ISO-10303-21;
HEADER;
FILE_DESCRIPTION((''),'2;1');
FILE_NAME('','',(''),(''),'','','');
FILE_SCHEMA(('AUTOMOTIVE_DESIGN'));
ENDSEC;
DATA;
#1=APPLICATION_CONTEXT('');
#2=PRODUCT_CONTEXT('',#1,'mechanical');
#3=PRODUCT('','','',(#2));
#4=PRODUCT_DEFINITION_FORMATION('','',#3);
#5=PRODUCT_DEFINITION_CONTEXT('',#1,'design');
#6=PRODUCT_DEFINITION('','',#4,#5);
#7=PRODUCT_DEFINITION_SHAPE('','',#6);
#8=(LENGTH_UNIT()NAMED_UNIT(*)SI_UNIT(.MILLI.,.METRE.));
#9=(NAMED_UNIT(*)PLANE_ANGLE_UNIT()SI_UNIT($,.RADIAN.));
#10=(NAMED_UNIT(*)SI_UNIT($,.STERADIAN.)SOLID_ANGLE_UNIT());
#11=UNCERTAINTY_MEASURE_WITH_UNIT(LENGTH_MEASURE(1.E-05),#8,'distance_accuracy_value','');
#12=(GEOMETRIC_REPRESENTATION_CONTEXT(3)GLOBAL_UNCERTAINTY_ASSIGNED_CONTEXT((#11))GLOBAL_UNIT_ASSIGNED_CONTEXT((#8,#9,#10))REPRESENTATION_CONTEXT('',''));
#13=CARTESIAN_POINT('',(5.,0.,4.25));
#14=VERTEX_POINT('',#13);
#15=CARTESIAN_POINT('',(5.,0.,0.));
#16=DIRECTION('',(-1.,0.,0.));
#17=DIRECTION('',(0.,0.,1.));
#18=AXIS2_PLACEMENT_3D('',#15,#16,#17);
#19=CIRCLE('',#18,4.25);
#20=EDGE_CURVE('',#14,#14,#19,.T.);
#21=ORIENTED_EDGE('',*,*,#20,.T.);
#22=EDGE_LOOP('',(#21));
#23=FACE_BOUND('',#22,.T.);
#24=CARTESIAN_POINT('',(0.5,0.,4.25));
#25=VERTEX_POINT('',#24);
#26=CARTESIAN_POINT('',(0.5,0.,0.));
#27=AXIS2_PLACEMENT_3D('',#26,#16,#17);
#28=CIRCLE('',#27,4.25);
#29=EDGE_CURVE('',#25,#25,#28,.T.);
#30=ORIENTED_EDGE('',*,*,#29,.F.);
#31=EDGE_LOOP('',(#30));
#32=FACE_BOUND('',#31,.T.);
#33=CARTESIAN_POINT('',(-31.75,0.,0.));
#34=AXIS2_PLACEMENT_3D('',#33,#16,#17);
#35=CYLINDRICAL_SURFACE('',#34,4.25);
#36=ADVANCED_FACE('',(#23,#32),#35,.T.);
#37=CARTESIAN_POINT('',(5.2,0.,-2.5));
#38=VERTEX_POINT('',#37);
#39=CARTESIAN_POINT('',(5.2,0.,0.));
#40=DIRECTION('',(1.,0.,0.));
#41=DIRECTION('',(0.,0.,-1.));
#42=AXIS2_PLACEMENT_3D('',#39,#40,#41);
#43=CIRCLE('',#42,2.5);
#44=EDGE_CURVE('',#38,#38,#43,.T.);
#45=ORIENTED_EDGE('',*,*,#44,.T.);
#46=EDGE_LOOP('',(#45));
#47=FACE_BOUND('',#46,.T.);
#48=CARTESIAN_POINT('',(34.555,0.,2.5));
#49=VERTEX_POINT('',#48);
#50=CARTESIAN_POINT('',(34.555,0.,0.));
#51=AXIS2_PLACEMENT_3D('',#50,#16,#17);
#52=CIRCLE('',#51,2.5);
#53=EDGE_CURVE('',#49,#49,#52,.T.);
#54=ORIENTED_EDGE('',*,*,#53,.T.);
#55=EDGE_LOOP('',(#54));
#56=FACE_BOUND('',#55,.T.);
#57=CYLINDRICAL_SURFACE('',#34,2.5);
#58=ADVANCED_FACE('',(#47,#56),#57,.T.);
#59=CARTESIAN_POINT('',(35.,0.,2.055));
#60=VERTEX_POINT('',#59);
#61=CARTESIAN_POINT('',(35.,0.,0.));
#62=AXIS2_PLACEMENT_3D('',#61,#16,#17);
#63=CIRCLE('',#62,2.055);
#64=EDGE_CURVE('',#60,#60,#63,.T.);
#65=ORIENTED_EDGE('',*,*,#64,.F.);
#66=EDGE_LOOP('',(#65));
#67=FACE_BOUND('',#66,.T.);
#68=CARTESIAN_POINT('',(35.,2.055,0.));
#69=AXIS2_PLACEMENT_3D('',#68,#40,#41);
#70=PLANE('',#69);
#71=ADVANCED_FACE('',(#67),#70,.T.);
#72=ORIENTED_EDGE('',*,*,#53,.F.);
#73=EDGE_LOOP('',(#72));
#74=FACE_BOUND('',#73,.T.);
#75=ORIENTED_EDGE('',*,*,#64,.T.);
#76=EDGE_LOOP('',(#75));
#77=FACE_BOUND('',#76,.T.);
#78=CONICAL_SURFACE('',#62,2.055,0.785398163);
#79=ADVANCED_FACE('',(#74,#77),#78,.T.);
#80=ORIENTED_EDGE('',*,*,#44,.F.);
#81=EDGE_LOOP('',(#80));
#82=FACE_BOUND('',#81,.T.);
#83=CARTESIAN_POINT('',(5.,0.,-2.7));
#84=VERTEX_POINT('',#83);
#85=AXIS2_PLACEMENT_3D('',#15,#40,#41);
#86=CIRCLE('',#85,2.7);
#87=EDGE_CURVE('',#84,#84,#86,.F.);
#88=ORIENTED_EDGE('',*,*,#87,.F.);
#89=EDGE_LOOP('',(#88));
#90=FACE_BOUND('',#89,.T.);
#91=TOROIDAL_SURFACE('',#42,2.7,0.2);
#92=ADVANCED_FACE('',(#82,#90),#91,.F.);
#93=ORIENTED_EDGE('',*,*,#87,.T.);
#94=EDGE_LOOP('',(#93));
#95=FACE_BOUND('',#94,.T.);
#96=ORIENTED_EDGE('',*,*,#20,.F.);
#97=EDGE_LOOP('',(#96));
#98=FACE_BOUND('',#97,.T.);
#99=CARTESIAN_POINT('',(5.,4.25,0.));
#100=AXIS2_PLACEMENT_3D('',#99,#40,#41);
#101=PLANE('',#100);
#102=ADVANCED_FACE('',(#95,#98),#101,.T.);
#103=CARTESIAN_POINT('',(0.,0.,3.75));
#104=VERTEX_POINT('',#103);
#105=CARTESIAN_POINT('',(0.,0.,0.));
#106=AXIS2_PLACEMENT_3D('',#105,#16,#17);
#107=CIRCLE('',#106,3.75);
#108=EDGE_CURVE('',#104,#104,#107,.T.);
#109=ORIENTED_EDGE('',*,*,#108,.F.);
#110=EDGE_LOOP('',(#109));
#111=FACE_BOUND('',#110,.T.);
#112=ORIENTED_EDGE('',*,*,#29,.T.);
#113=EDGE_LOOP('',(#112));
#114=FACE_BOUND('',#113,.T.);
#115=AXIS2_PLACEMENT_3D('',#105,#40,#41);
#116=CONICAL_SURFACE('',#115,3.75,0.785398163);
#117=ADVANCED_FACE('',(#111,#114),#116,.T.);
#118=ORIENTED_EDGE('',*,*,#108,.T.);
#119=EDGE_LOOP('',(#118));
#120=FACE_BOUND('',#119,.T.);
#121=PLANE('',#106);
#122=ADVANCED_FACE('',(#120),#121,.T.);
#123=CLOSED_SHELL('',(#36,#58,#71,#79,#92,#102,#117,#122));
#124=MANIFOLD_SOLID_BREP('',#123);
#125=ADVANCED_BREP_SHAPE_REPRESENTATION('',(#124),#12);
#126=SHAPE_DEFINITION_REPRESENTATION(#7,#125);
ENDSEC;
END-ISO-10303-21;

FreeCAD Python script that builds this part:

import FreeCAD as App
import Part
import Sketcher
from FreeCAD import Vector
Q = App.Units.Quantity


def edges_at(feature, points):
    """Names of the edges that pass closest to the given points."""
    edges = feature.Shape.Edges
    near = lambda p: min(range(len(edges)), key=lambda i: edges[i].distToShape(Part.Vertex(*p))[0])
    return sorted({f"Edge{near(p) + 1}" for p in points})


def add_polygon(sketch, points):
    """Adds a closed chain of lines whose ends are joined by coincident constraints."""
    first, n = sketch.GeometryCount, len(points)
    for a, b in zip(points, points[1:] + points[:1]):
        sketch.addGeometry(Part.LineSegment(App.Vector(*a, 0), App.Vector(*b, 0)), False)
    for i in range(n):
        sketch.addConstraint(Sketcher.Constraint("Coincident", first + i, 2, first + (i + 1) % n, 1))

doc = App.newDocument("Part")
body = doc.addObject("PartDesign::Body", "Body")

# Sketch on XY plane
sketch1 = doc.addObject("Sketcher::SketchObject", "Sketch")
body.addObject(sketch1)
sketch1.AttachmentSupport = (doc.XY_Plane, [""])
sketch1.MapMode = "FlatFace"
add_polygon(sketch1, [(0, 3.8), (0, 0), (35, 0), (35, 2.1), (34.6, 2.5), (5, 2.5), (5, 4.2), (0.5, 4.2)])  # lines 0-7
sketch1.addConstraint([
    Sketcher.Constraint("Vertical", 0),
    Sketcher.Constraint("Horizontal", 1),
    Sketcher.Constraint("Vertical", 2),
    Sketcher.Constraint("Horizontal", 4),
    Sketcher.Constraint("Vertical", 5),
    Sketcher.Constraint("Horizontal", 6),
    Sketcher.Constraint("Coincident", 0, 2, -1, 1),
    Sketcher.Constraint("Perpendicular", 3, 7),
    Sketcher.Constraint("DistanceX", 1, 1, 1, 2, Q("35 mm")),
    Sketcher.Constraint("Angle", 3, Q("135 deg")),
    Sketcher.Constraint("DistanceX", 6, 2, 6, 1, Q("4.5 mm")),
    Sketcher.Constraint("DistanceX", -1, 1, 4, 2, Q("5 mm")),
    Sketcher.Constraint("DistanceY", 0, 2, 0, 1, Q("3.75 mm")),
    Sketcher.Constraint("DistanceY", 5, 1, 5, 2, Q("1.75 mm")),
    Sketcher.Constraint("DistanceX", 4, 2, 4, 1, Q("29.555 mm")),
])
revolution = doc.addObject("PartDesign::Revolution", "Revolution")
body.addObject(revolution)
revolution.Profile = sketch1
revolution.ReferenceAxis = (sketch1, ["H_Axis"])
revolution.Angle = 360
doc.recompute()

fillet = doc.addObject("PartDesign::Fillet", "Fillet")
body.addObject(fillet)
fillet.Base = (revolution, edges_at(revolution, [(5, -2.5, 0)]))
fillet.Radius = 0.2

doc.recompute()
